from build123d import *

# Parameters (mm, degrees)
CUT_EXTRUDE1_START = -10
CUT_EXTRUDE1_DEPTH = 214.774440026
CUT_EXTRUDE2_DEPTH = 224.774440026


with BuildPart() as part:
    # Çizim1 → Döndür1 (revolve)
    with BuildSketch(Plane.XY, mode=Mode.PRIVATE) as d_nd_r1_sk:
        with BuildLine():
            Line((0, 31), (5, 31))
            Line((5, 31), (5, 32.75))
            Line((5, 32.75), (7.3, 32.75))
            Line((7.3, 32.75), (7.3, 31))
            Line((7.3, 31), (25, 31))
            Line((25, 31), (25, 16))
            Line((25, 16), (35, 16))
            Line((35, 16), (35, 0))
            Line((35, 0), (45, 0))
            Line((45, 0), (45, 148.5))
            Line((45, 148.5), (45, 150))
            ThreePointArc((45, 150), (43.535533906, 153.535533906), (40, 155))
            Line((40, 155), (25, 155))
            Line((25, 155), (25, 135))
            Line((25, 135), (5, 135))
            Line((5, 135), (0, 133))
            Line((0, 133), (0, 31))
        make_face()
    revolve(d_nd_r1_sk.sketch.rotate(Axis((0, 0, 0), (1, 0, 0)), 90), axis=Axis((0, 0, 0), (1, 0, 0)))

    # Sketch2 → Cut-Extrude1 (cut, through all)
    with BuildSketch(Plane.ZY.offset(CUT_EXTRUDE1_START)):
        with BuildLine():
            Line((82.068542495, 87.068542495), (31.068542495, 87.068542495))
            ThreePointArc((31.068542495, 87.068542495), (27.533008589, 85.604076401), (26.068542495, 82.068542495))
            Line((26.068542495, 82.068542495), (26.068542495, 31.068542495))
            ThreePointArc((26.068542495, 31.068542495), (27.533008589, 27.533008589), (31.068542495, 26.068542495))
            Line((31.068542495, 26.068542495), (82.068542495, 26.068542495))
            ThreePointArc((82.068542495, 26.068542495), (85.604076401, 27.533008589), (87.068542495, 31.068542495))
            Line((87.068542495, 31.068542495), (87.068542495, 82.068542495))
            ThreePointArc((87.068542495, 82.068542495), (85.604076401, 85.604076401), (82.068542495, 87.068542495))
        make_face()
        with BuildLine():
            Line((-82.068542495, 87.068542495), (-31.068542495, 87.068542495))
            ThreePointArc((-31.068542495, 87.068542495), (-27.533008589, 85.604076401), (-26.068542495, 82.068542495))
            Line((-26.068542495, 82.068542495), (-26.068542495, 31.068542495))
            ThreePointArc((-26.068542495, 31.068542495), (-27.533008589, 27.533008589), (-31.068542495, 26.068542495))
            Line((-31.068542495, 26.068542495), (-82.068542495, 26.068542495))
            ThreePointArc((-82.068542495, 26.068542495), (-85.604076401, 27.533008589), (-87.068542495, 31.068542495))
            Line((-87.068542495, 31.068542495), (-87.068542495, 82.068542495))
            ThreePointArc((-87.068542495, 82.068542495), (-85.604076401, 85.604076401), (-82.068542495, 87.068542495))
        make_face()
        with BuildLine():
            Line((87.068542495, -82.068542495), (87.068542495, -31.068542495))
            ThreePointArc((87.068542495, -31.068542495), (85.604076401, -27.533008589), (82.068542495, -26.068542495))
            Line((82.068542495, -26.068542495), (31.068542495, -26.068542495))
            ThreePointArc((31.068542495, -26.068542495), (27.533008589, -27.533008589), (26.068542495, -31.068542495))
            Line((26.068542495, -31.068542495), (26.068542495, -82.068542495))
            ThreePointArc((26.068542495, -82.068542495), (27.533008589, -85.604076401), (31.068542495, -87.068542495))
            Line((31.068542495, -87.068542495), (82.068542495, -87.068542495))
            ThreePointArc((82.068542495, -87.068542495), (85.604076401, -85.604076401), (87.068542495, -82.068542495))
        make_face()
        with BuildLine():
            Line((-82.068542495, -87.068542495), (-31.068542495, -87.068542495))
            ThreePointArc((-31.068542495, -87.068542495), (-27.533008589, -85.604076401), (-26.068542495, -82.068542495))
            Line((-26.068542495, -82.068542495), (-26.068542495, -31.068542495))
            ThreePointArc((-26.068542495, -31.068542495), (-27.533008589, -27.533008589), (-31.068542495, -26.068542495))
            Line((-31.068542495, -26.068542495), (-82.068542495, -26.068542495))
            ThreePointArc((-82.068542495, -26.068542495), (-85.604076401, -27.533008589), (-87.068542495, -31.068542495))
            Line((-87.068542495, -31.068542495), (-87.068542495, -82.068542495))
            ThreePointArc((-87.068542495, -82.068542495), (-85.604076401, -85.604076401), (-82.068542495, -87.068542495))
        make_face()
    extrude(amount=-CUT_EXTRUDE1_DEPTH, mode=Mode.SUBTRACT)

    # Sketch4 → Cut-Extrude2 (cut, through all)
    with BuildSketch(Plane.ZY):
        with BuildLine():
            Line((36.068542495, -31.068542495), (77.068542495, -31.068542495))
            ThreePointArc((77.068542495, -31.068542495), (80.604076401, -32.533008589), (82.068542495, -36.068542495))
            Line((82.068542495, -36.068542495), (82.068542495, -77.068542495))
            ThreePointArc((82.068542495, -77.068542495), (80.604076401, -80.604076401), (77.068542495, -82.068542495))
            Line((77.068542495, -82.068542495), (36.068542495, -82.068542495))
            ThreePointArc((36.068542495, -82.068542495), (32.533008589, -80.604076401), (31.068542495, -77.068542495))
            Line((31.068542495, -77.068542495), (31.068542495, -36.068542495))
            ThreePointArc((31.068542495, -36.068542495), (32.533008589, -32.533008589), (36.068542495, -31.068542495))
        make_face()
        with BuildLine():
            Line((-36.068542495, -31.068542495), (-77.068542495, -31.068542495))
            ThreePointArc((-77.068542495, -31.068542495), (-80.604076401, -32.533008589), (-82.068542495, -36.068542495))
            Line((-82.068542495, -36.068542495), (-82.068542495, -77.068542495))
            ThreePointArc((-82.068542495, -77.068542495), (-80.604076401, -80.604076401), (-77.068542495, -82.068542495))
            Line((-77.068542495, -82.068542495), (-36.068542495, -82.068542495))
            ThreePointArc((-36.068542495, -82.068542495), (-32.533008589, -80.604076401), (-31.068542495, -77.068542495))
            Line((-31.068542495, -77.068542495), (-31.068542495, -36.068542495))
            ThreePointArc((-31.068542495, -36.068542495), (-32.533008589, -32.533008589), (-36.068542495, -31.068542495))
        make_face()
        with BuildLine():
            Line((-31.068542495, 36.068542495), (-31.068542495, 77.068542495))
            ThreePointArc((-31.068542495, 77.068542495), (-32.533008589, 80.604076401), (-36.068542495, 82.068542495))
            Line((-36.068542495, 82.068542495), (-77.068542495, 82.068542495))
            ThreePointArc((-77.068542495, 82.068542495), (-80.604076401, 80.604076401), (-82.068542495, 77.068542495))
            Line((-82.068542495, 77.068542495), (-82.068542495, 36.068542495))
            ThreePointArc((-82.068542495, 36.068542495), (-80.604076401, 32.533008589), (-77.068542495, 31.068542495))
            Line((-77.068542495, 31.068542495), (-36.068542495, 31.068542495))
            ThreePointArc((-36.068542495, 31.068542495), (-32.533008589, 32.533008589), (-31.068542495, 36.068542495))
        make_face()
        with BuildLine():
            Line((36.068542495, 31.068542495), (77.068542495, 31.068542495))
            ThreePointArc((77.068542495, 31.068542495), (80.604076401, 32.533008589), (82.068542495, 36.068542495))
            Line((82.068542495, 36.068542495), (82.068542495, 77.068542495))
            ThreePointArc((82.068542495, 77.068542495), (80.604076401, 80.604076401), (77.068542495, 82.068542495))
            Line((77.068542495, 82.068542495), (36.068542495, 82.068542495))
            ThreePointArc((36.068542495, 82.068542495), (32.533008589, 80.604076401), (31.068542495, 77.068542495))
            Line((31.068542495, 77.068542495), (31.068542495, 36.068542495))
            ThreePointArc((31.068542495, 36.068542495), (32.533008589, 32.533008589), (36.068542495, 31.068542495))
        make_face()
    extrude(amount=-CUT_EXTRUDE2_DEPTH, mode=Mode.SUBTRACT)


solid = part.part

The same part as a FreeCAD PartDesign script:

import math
import FreeCAD as App
import Part
import Sketcher

V = App.Vector
Q = App.Units.Quantity

doc = App.newDocument("Part")
body = doc.addObject("PartDesign::Body", "Body")

# Sketch on XY plane
sketch1 = doc.addObject("Sketcher::SketchObject", "Sketch")
body.addObject(sketch1)
sketch1.AttachmentSupport = (doc.XY_Plane, [""])
sketch1.MapMode = "FlatFace"
sketch1.addGeometry([
    Part.LineSegment(V(0, 31, 0), V(5, 31, 0)),  # 0
    Part.LineSegment(V(5, 31, 0), V(5, 32.8, 0)),  # 1
    Part.LineSegment(V(5, 32.8, 0), V(7.3, 32.8, 0)),  # 2
    Part.LineSegment(V(7.3, 32.8, 0), V(7.3, 31, 0)),  # 3
    Part.LineSegment(V(7.3, 31, 0), V(25, 31, 0)),  # 4
    Part.LineSegment(V(25, 31, 0), V(25, 16, 0)),  # 5
    Part.LineSegment(V(25, 16, 0), V(35, 16, 0)),  # 6
    Part.LineSegment(V(35, 16, 0), V(35, 0, 0)),  # 7
    Part.LineSegment(V(35, 0, 0), V(45, 0, 0)),  # 8
    Part.LineSegment(V(45, 0, 0), V(45, 150, 0)),  # 9
    Part.ArcOfCircle(Part.Circle(V(40, 150, 0), V(0, 0, 1), 5), math.radians(0), math.radians(90)),  # 10
    Part.LineSegment(V(40, 155, 0), V(25, 155, 0)),  # 11
    Part.LineSegment(V(25, 155, 0), V(25, 135, 0)),  # 12
    Part.LineSegment(V(25, 135, 0), V(5, 135, 0)),  # 13
    Part.LineSegment(V(5, 135, 0), V(0, 133, 0)),  # 14
    Part.LineSegment(V(0, 133, 0), V(0, 31, 0)),  # 15
], False)
sketch1.addConstraint([
    Sketcher.Constraint("Coincident", 0, 2, 1, 1),
    Sketcher.Constraint("Coincident", 1, 2, 2, 1),
    Sketcher.Constraint("Coincident", 2, 2, 3, 1),
    Sketcher.Constraint("Coincident", 3, 2, 4, 1),
    Sketcher.Constraint("Coincident", 4, 2, 5, 1),
    Sketcher.Constraint("Coincident", 5, 2, 6, 1),
    Sketcher.Constraint("Coincident", 6, 2, 7, 1),
    Sketcher.Constraint("Coincident", 7, 2, 8, 1),
    Sketcher.Constraint("Coincident", 8, 2, 9, 1),
    Sketcher.Constraint("Tangent", 9, 2, 10, 1),
    Sketcher.Constraint("Tangent", 10, 2, 11, 1),
    Sketcher.Constraint("Coincident", 11, 2, 12, 1),
    Sketcher.Constraint("Coincident", 12, 2, 13, 1),
    Sketcher.Constraint("Coincident", 13, 2, 14, 1),
    Sketcher.Constraint("Coincident", 14, 2, 15, 1),
    Sketcher.Constraint("Coincident", 15, 2, 0, 1),
    Sketcher.Constraint("Horizontal", 0),
    Sketcher.Constraint("Vertical", 1),
    Sketcher.Constraint("Horizontal", 2),
    Sketcher.Constraint("Vertical", 3),
    Sketcher.Constraint("Horizontal", 4),
    Sketcher.Constraint("Vertical", 5),
    Sketcher.Constraint("Horizontal", 6),
    Sketcher.Constraint("Vertical", 7),
    Sketcher.Constraint("Horizontal", 8),
    Sketcher.Constraint("Vertical", 9),
    Sketcher.Constraint("Horizontal", 11),
    Sketcher.Constraint("Vertical", 12),
    Sketcher.Constraint("Horizontal", 13),
    Sketcher.Constraint("Vertical", 15),
    Sketcher.Constraint("PointOnObject", 7, 2, -1),
    Sketcher.Constraint("PointOnObject", 14, 2, -2),
    Sketcher.Constraint("Horizontal", 0, 2, 3, 2),
    Sketcher.Constraint("Vertical", 5, 2, 11, 2),
    Sketcher.Constraint("Vertical", 1, 2, 13, 2),
    Sketcher.Constraint("Equal", 6, 8),
    Sketcher.Constraint("Equal", 11, 5),
    Sketcher.Constraint("Equal", 13, 12),
    Sketcher.Constraint("Radius", 10, Q("5 mm")),
    Sketcher.Constraint("DistanceX", 0, 1, 0, 2, Q("5 mm")),
    Sketcher.Constraint("DistanceX", 6, 1, 6, 2, Q("10 mm")),
    Sketcher.Constraint("DistanceX", 13, 2, 13, 1, Q("20 mm")),
    Sketcher.Constraint("DistanceY", 7, 2, 7, 1, Q("16 mm")),
    Sketcher.Constraint("DistanceY", 9, 1, 9, 2, Q("150 mm")),
    Sketcher.Constraint("DistanceY", 15, 2, 15, 1, Q("102 mm")),
    Sketcher.Constraint("DistanceX", 2, 1, 2, 2, Q("2.3 mm")),
    Sketcher.Constraint("DistanceY", 1, 1, 1, 2, Q("1.75 mm")),
])
revolution = doc.addObject("PartDesign::Revolution", "Revolution")
body.addObject(revolution)
revolution.Profile = sketch1
revolution.ReferenceAxis = (sketch1, ["H_Axis"])
revolution.Angle = 360

# Sketch on YZ plane
sketch2 = doc.addObject("Sketcher::SketchObject", "Sketch001")
body.addObject(sketch2)
sketch2.AttachmentSupport = (doc.YZ_Plane, [""])
sketch2.MapMode = "FlatFace"
sketch2.AttachmentOffset = App.Placement(V(0, 0, 10), App.Rotation())
sketch2.addGeometry([
    Part.LineSegment(V(87, 82, 0), V(87, 31, 0)),  # 0
    Part.ArcOfCircle(Part.Circle(V(82, 31, 0), V(0, 0, 1), 5), math.radians(-90), math.radians(0)),  # 1
    Part.LineSegment(V(82, 26, 0), V(31, 26, 0)),  # 2
    Part.ArcOfCircle(Part.Circle(V(31, 31, 0), V(0, 0, 1), 5), math.radians(180), math.radians(270)),  # 3
    Part.LineSegment(V(26, 31, 0), V(26, 82, 0)),  # 4
    Part.ArcOfCircle(Part.Circle(V(31, 82, 0), V(0, 0, 1), 5), math.radians(90), math.radians(180)),  # 5
    Part.LineSegment(V(31, 87, 0), V(82, 87, 0)),  # 6
    Part.ArcOfCircle(Part.Circle(V(82, 82, 0), V(0, 0, 1), 5), math.radians(0), math.radians(90)),  # 7
    Part.LineSegment(V(87, -31, 0), V(87, -82, 0)),  # 8
    Part.ArcOfCircle(Part.Circle(V(82, -82, 0), V(0, 0, 1), 5), math.radians(-90), math.radians(0)),  # 9
    Part.LineSegment(V(82, -87, 0), V(31, -87, 0)),  # 10
    Part.ArcOfCircle(Part.Circle(V(31, -82, 0), V(0, 0, 1), 5), math.radians(180), math.radians(270)),  # 11
    Part.LineSegment(V(26, -82, 0), V(26, -31, 0)),  # 12
    Part.ArcOfCircle(Part.Circle(V(31, -31, 0), V(0, 0, 1), 5), math.radians(90), math.radians(180)),  # 13
    Part.LineSegment(V(31, -26, 0), V(82, -26, 0)),  # 14
    Part.ArcOfCircle(Part.Circle(V(82, -31, 0), V(0, 0, 1), 5), math.radians(0), math.radians(90)),  # 15
    Part.LineSegment(V(-82, 87, 0), V(-31, 87, 0)),  # 16
    Part.ArcOfCircle(Part.Circle(V(-31, 82, 0), V(0, 0, 1), 5), math.radians(0), math.radians(90)),  # 17
    Part.LineSegment(V(-26, 82, 0), V(-26, 31, 0)),  # 18
    Part.ArcOfCircle(Part.Circle(V(-31, 31, 0), V(0, 0, 1), 5), math.radians(-90), math.radians(0)),  # 19
    Part.LineSegment(V(-31, 26, 0), V(-82, 26, 0)),  # 20
    Part.ArcOfCircle(Part.Circle(V(-82, 31, 0), V(0, 0, 1), 5), math.radians(180), math.radians(270)),  # 21
    Part.LineSegment(V(-87, 31, 0), V(-87, 82, 0)),  # 22
    Part.ArcOfCircle(Part.Circle(V(-82, 82, 0), V(0, 0, 1), 5), math.radians(90), math.radians(180)),  # 23
    Part.LineSegment(V(-87, -82, 0), V(-87, -31, 0)),  # 24
    Part.ArcOfCircle(Part.Circle(V(-82, -31, 0), V(0, 0, 1), 5), math.radians(90), math.radians(180)),  # 25
    Part.LineSegment(V(-82, -26, 0), V(-31, -26, 0)),  # 26
    Part.ArcOfCircle(Part.Circle(V(-31, -31, 0), V(0, 0, 1), 5), math.radians(0), math.radians(90)),  # 27
    Part.LineSegment(V(-26, -31, 0), V(-26, -82, 0)),  # 28
    Part.ArcOfCircle(Part.Circle(V(-31, -82, 0), V(0, 0, 1), 5), math.radians(-90), math.radians(0)),  # 29
    Part.LineSegment(V(-31, -87, 0), V(-82, -87, 0)),  # 30
    Part.ArcOfCircle(Part.Circle(V(-82, -82, 0), V(0, 0, 1), 5), math.radians(180), math.radians(270)),  # 31
], False)
sketch2.addConstraint([
    Sketcher.Constraint("Tangent", 0, 2, 1, 2),
    Sketcher.Constraint("Tangent", 1, 1, 2, 1),
    Sketcher.Constraint("Tangent", 2, 2, 3, 2),
    Sketcher.Constraint("Tangent", 3, 1, 4, 1),
    Sketcher.Constraint("Tangent", 4, 2, 5, 2),
    Sketcher.Constraint("Tangent", 5, 1, 6, 1),
    Sketcher.Constraint("Tangent", 6, 2, 7, 2),
    Sketcher.Constraint("Tangent", 7, 1, 0, 1),
    Sketcher.Constraint("Tangent", 8, 2, 9, 2),
    Sketcher.Constraint("Tangent", 9, 1, 10, 1),
    Sketcher.Constraint("Tangent", 10, 2, 11, 2),
    Sketcher.Constraint("Tangent", 11, 1, 12, 1),
    Sketcher.Constraint("Tangent", 12, 2, 13, 2),
    Sketcher.Constraint("Tangent", 13, 1, 14, 1),
    Sketcher.Constraint("Tangent", 14, 2, 15, 2),
    Sketcher.Constraint("Tangent", 15, 1, 8, 1),
    Sketcher.Constraint("Tangent", 16, 2, 17, 2),
    Sketcher.Constraint("Tangent", 17, 1, 18, 1),
    Sketcher.Constraint("Tangent", 18, 2, 19, 2),
    Sketcher.Constraint("Tangent", 19, 1, 20, 1),
    Sketcher.Constraint("Tangent", 20, 2, 21, 2),
    Sketcher.Constraint("Tangent", 21, 1, 22, 1),
    Sketcher.Constraint("Tangent", 22, 2, 23, 2),
    Sketcher.Constraint("Tangent", 23, 1, 16, 1),
    Sketcher.Constraint("Tangent", 24, 2, 25, 2),
    Sketcher.Constraint("Tangent", 25, 1, 26, 1),
    Sketcher.Constraint("Tangent", 26, 2, 27, 2),
    Sketcher.Constraint("Tangent", 27, 1, 28, 1),
    Sketcher.Constraint("Tangent", 28, 2, 29, 2),
    Sketcher.Constraint("Tangent", 29, 1, 30, 1),
    Sketcher.Constraint("Tangent", 30, 2, 31, 2),
    Sketcher.Constraint("Tangent", 31, 1, 24, 1),
    Sketcher.Constraint("Vertical", 0),
    Sketcher.Constraint("Horizontal", 2),
    Sketcher.Constraint("Vertical", 4),
    Sketcher.Constraint("Horizontal", 6),
    Sketcher.Constraint("Vertical", 8),
    Sketcher.Constraint("Horizontal", 10),
    Sketcher.Constraint("Vertical", 12),
    Sketcher.Constraint("Horizontal", 14),
    Sketcher.Constraint("Horizontal", 16),
    Sketcher.Constraint("Vertical", 18),
    Sketcher.Constraint("Horizontal", 20),
    Sketcher.Constraint("Vertical", 22),
    Sketcher.Constraint("Vertical", 24),
    Sketcher.Constraint("Horizontal", 26),
    Sketcher.Constraint("Vertical", 28),
    Sketcher.Constraint("Horizontal", 30),
    Sketcher.Constraint("Equal", 1, 3),
    Sketcher.Constraint("Equal", 3, 5),
    Sketcher.Constraint("Equal", 5, 7),
    Sketcher.Constraint("Equal", 7, 9),
    Sketcher.Constraint("Equal", 9, 11),
    Sketcher.Constraint("Equal", 11, 13),
    Sketcher.Constraint("Equal", 13, 15),
    Sketcher.Constraint("Equal", 15, 17),
    Sketcher.Constraint("Equal", 17, 19),
    Sketcher.Constraint("Equal", 19, 21),
    Sketcher.Constraint("Equal", 21, 23),
    Sketcher.Constraint("Equal", 23, 25),
    Sketcher.Constraint("Equal", 25, 27),
    Sketcher.Constraint("Equal", 27, 29),
    Sketcher.Constraint("Equal", 29, 31),
    Sketcher.Constraint("Symmetric", 11, 3, 17, 3, -1, 1),
    Sketcher.Constraint("Symmetric", 15, 3, 21, 3, -1, 1),
    Sketcher.Constraint("Symmetric", 1, 3, 25, 3, -1, 1),
    Sketcher.Constraint("Symmetric", 5, 3, 29, 3, -1, 1),
    Sketcher.Constraint("Symmetric", 5, 3, 17, 3, -2),
    Sketcher.Constraint("Symmetric", 1, 3, 21, 3, -2),
    Sketcher.Constraint("Equal", 30, 0),
    Sketcher.Constraint("Radius", 1, Q("5 mm")),
    Sketcher.Constraint("DistanceX", 2, 2, 2, 1, Q("51 mm")),
    Sketcher.Constraint("DistanceX", -1, 1, 1, 3, Q("82.068542 mm")),
    Sketcher.Constraint("DistanceY", -1, 1, 1, 3, Q("31.068542 mm")),
])
pocket1 = doc.addObject("PartDesign::Pocket", "Pocket")
body.addObject(pocket1)
pocket1.Profile = sketch2
pocket1.Type = "ThroughAll"
pocket1.Reversed = True

# Sketch on YZ plane
sketch3 = doc.addObject("Sketcher::SketchObject", "Sketch002")
body.addObject(sketch3)
sketch3.AttachmentSupport = (doc.YZ_Plane, [""])
sketch3.MapMode = "FlatFace"
sketch3.addGeometry([
    Part.LineSegment(V(-31, 77, 0), V(-31, 36, 0)),  # 0
    Part.ArcOfCircle(Part.Circle(V(-36, 36, 0), V(0, 0, 1), 5), math.radians(-90), math.radians(0)),  # 1
    Part.LineSegment(V(-36, 31, 0), V(-77, 31, 0)),  # 2
    Part.ArcOfCircle(Part.Circle(V(-77, 36, 0), V(0, 0, 1), 5), math.radians(180), math.radians(270)),  # 3
    Part.LineSegment(V(-82, 36, 0), V(-82, 77, 0)),  # 4
    Part.ArcOfCircle(Part.Circle(V(-77, 77, 0), V(0, 0, 1), 5), math.radians(90), math.radians(180)),  # 5
    Part.LineSegment(V(-77, 82, 0), V(-36, 82, 0)),  # 6
    Part.ArcOfCircle(Part.Circle(V(-36, 77, 0), V(0, 0, 1), 5), math.radians(0), math.radians(90)),  # 7
    Part.LineSegment(V(-31, -36, 0), V(-31, -77, 0)),  # 8
    Part.ArcOfCircle(Part.Circle(V(-36, -77, 0), V(0, 0, 1), 5), math.radians(-90), math.radians(0)),  # 9
    Part.LineSegment(V(-36, -82, 0), V(-77, -82, 0)),  # 10
    Part.ArcOfCircle(Part.Circle(V(-77, -77, 0), V(0, 0, 1), 5), math.radians(180), math.radians(270)),  # 11
    Part.LineSegment(V(-82, -77, 0), V(-82, -36, 0)),  # 12
    Part.ArcOfCircle(Part.Circle(V(-77, -36, 0), V(0, 0, 1), 5), math.radians(90), math.radians(180)),  # 13
    Part.LineSegment(V(-77, -31, 0), V(-36, -31, 0)),  # 14
    Part.ArcOfCircle(Part.Circle(V(-36, -36, 0), V(0, 0, 1), 5), math.radians(0), math.radians(90)),  # 15
    Part.LineSegment(V(36, -31, 0), V(77, -31, 0)),  # 16
    Part.ArcOfCircle(Part.Circle(V(77, -36, 0), V(0, 0, 1), 5), math.radians(0), math.radians(90)),  # 17
    Part.LineSegment(V(82, -36, 0), V(82, -77, 0)),  # 18
    Part.ArcOfCircle(Part.Circle(V(77, -77, 0), V(0, 0, 1), 5), math.radians(-90), math.radians(0)),  # 19
    Part.LineSegment(V(77, -82, 0), V(36, -82, 0)),  # 20
    Part.ArcOfCircle(Part.Circle(V(36, -77, 0), V(0, 0, 1), 5), math.radians(180), math.radians(270)),  # 21
    Part.LineSegment(V(31, -77, 0), V(31, -36, 0)),  # 22
    Part.ArcOfCircle(Part.Circle(V(36, -36, 0), V(0, 0, 1), 5), math.radians(90), math.radians(180)),  # 23
    Part.LineSegment(V(31, 36, 0), V(31, 77, 0)),  # 24
    Part.ArcOfCircle(Part.Circle(V(36, 77, 0), V(0, 0, 1), 5), math.radians(90), math.radians(180)),  # 25
    Part.LineSegment(V(36, 82, 0), V(77, 82, 0)),  # 26
    Part.ArcOfCircle(Part.Circle(V(77, 77, 0), V(0, 0, 1), 5), math.radians(0), math.radians(90)),  # 27
    Part.LineSegment(V(82, 77, 0), V(82, 36, 0)),  # 28
    Part.ArcOfCircle(Part.Circle(V(77, 36, 0), V(0, 0, 1), 5), math.radians(-90), math.radians(0)),  # 29
    Part.LineSegment(V(77, 31, 0), V(36, 31, 0)),  # 30
    Part.ArcOfCircle(Part.Circle(V(36, 36, 0), V(0, 0, 1), 5), math.radians(180), math.radians(270)),  # 31
], False)
sketch3.addConstraint([
    Sketcher.Constraint("Tangent", 0, 2, 1, 2),
    Sketcher.Constraint("Tangent", 1, 1, 2, 1),
    Sketcher.Constraint("Tangent", 2, 2, 3, 2),
    Sketcher.Constraint("Tangent", 3, 1, 4, 1),
    Sketcher.Constraint("Tangent", 4, 2, 5, 2),
    Sketcher.Constraint("Tangent", 5, 1, 6, 1),
    Sketcher.Constraint("Tangent", 6, 2, 7, 2),
    Sketcher.Constraint("Tangent", 7, 1, 0, 1),
    Sketcher.Constraint("Tangent", 8, 2, 9, 2),
    Sketcher.Constraint("Tangent", 9, 1, 10, 1),
    Sketcher.Constraint("Tangent", 10, 2, 11, 2),
    Sketcher.Constraint("Tangent", 11, 1, 12, 1),
    Sketcher.Constraint("Tangent", 12, 2, 13, 2),
    Sketcher.Constraint("Tangent", 13, 1, 14, 1),
    Sketcher.Constraint("Tangent", 14, 2, 15, 2),
    Sketcher.Constraint("Tangent", 15, 1, 8, 1),
    Sketcher.Constraint("Tangent", 16, 2, 17, 2),
    Sketcher.Constraint("Tangent", 17, 1, 18, 1),
    Sketcher.Constraint("Tangent", 18, 2, 19, 2),
    Sketcher.Constraint("Tangent", 19, 1, 20, 1),
    Sketcher.Constraint("Tangent", 20, 2, 21, 2),
    Sketcher.Constraint("Tangent", 21, 1, 22, 1),
    Sketcher.Constraint("Tangent", 22, 2, 23, 2),
    Sketcher.Constraint("Tangent", 23, 1, 16, 1),
    Sketcher.Constraint("Tangent", 24, 2, 25, 2),
    Sketcher.Constraint("Tangent", 25, 1, 26, 1),
    Sketcher.Constraint("Tangent", 26, 2, 27, 2),
    Sketcher.Constraint("Tangent", 27, 1, 28, 1),
    Sketcher.Constraint("Tangent", 28, 2, 29, 2),
    Sketcher.Constraint("Tangent", 29, 1, 30, 1),
    Sketcher.Constraint("Tangent", 30, 2, 31, 2),
    Sketcher.Constraint("Tangent", 31, 1, 24, 1),
    Sketcher.Constraint("Vertical", 0),
    Sketcher.Constraint("Horizontal", 2),
    Sketcher.Constraint("Vertical", 4),
    Sketcher.Constraint("Horizontal", 6),
    Sketcher.Constraint("Vertical", 8),
    Sketcher.Constraint("Horizontal", 10),
    Sketcher.Constraint("Vertical", 12),
    Sketcher.Constraint("Horizontal", 14),
    Sketcher.Constraint("Horizontal", 16),
    Sketcher.Constraint("Vertical", 18),
    Sketcher.Constraint("Horizontal", 20),
    Sketcher.Constraint("Vertical", 22),
    Sketcher.Constraint("Vertical", 24),
    Sketcher.Constraint("Horizontal", 26),
    Sketcher.Constraint("Vertical", 28),
    Sketcher.Constraint("Horizontal", 30),
    Sketcher.Constraint("Equal", 1, 3),
    Sketcher.Constraint("Equal", 3, 5),
    Sketcher.Constraint("Equal", 5, 7),
    Sketcher.Constraint("Equal", 7, 9),
    Sketcher.Constraint("Equal", 9, 11),
    Sketcher.Constraint("Equal", 11, 13),
    Sketcher.Constraint("Equal", 13, 15),
    Sketcher.Constraint("Equal", 15, 17),
    Sketcher.Constraint("Equal", 17, 19),
    Sketcher.Constraint("Equal", 19, 21),
    Sketcher.Constraint("Equal", 21, 23),
    Sketcher.Constraint("Equal", 23, 25),
    Sketcher.Constraint("Equal", 25, 27),
    Sketcher.Constraint("Equal", 27, 29),
    Sketcher.Constraint("Equal", 29, 31),
    Sketcher.Constraint("Symmetric", 3, 3, 17, 3, -1, 1),
    Sketcher.Constraint("Symmetric", 7, 3, 21, 3, -1, 1),
    Sketcher.Constraint("Symmetric", 9, 3, 25, 3, -1, 1),
    Sketcher.Constraint("Symmetric", 13, 3, 29, 3, -1, 1),
    Sketcher.Constraint("Symmetric", 13, 3, 17, 3, -2),
    Sketcher.Constraint("Symmetric", 9, 3, 21, 3, -2),
    Sketcher.Constraint("Equal", 30, 0),
    Sketcher.Constraint("Radius", 1, Q("5 mm")),
    Sketcher.Constraint("DistanceX", 2, 2, 2, 1, Q("41 mm")),
    Sketcher.Constraint("DistanceX", 1, 3, -1, 1, Q("36.068542 mm")),
    Sketcher.Constraint("DistanceY", -1, 1, 1, 3, Q("36.068542 mm")),
])
pocket2 = doc.addObject("PartDesign::Pocket", "Pocket001")
body.addObject(pocket2)
pocket2.Profile = sketch3
pocket2.Type = "ThroughAll"
pocket2.Reversed = True

doc.recompute()
